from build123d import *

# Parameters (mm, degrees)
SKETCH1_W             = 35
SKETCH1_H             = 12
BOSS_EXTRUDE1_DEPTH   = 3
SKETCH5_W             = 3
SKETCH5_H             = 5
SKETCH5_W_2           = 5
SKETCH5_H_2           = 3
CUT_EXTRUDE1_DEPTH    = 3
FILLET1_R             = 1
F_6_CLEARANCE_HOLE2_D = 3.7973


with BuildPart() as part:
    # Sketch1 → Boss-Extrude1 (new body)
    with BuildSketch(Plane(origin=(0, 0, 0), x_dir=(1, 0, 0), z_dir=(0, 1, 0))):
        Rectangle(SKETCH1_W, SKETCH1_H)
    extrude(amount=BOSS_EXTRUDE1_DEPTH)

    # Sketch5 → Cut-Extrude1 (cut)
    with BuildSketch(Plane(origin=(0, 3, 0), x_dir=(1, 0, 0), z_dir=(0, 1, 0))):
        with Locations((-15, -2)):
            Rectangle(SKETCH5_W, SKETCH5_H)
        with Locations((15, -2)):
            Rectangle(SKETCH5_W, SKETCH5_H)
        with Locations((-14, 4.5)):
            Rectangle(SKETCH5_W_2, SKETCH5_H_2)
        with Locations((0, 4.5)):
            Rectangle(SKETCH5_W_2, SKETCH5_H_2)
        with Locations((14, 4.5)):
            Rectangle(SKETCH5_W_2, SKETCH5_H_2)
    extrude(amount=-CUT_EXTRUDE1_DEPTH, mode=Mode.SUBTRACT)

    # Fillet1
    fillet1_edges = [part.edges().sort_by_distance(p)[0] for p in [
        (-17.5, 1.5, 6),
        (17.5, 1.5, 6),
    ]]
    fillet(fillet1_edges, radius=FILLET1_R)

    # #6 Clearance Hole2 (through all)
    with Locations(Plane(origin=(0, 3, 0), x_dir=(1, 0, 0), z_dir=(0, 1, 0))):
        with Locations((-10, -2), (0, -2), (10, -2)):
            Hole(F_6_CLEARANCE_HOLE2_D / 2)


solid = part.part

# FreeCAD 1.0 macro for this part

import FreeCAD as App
import Part
import Sketcher

V = App.Vector
Q = App.Units.Quantity


def edges_at(feature, points):
    """Names of the edges that pass closest to the given points."""
    edges = feature.Shape.Edges
    near = lambda p: min(range(len(edges)), key=lambda i: edges[i].distToShape(Part.Vertex(*p))[0])
    return sorted({f"Edge{near(p) + 1}" for p in points})


def add_polygon(sketch, points):
    """Adds a closed chain of lines whose ends are joined by coincident constraints."""
    first, n = sketch.GeometryCount, len(points)
    for a, b in zip(points, points[1:] + points[:1]):
        sketch.addGeometry(Part.LineSegment(App.Vector(*a, 0), App.Vector(*b, 0)), False)
    for i in range(n):
        sketch.addConstraint(Sketcher.Constraint("Coincident", first + i, 2, first + (i + 1) % n, 1))

doc = App.newDocument("Part")
body = doc.addObject("PartDesign::Body", "Body")

# Sketch on XZ plane
sketch1 = body.newObject("Sketcher::SketchObject", "Sketch")
sketch1.AttachmentSupport = (doc.getObject("XZ_Plane"), [""])
sketch1.MapMode = "FlatFace"
add_polygon(sketch1, [(-18, -6), (-18, 6), (18, 6), (18, -6)])  # lines 0-3
sketch1.addConstraint([
    Sketcher.Constraint("Vertical", 0),
    Sketcher.Constraint("Horizontal", 1),
    Sketcher.Constraint("Vertical", 2),
    Sketcher.Constraint("Horizontal", 3),
    Sketcher.Constraint("Symmetric", 0, 2, 2, 2, -1, 1),
    Sketcher.Constraint("DistanceX", 1, 1, 1, 2, Q("35 mm")),
    Sketcher.Constraint("DistanceY", 0, 1, 0, 2, Q("12 mm")),
])
pad1 = body.newObject("PartDesign::Pad", "Pad")
pad1.Profile = sketch1
pad1.Length = 3
pad1.Reversed = True

# Sketch on XZ plane
sketch2 = body.newObject("Sketcher::SketchObject", "Sketch001")
sketch2.AttachmentSupport = (doc.getObject("XZ_Plane"), [""])
sketch2.MapMode = "FlatFace"
sketch2.AttachmentOffset = App.Placement(V(0, 0, -3), App.Rotation())
add_polygon(sketch2, [(-16.5, -0.5), (-16.5, 4.5), (-13.5, 4.5), (-13.5, -0.5)])  # lines 0-3
add_polygon(sketch2, [(13.5, -0.5), (13.5, 4.5), (16.5, 4.5), (16.5, -0.5)])  # lines 4-7
add_polygon(sketch2, [(-16.5, -6), (-16.5, -3), (-11.5, -3), (-11.5, -6)])  # lines 8-11
add_polygon(sketch2, [(-2.5, -6), (-2.5, -3), (2.5, -3), (2.5, -6)])  # lines 12-15
add_polygon(sketch2, [(11.5, -6), (11.5, -3), (16.5, -3), (16.5, -6)])  # lines 16-19
sketch2.addConstraint([
    Sketcher.Constraint("Vertical", 0),
    Sketcher.Constraint("Horizontal", 1),
    Sketcher.Constraint("Vertical", 2),
    Sketcher.Constraint("Horizontal", 3),
    Sketcher.Constraint("Vertical", 4),
    Sketcher.Constraint("Horizontal", 5),
    Sketcher.Constraint("Vertical", 6),
    Sketcher.Constraint("Horizontal", 7),
    Sketcher.Constraint("Vertical", 8),
    Sketcher.Constraint("Horizontal", 9),
    Sketcher.Constraint("Vertical", 10),
    Sketcher.Constraint("Horizontal", 11),
    Sketcher.Constraint("Vertical", 12),
    Sketcher.Constraint("Horizontal", 13),
    Sketcher.Constraint("Vertical", 14),
    Sketcher.Constraint("Horizontal", 15),
    Sketcher.Constraint("Vertical", 16),
    Sketcher.Constraint("Horizontal", 17),
    Sketcher.Constraint("Vertical", 18),
    Sketcher.Constraint("Horizontal", 19),
    Sketcher.Constraint("Symmetric", 1, 2, 4, 2, -2),
    Sketcher.Constraint("Symmetric", 3, 2, 6, 2, -2),
    Sketcher.Constraint("Symmetric", 9, 2, 16, 2, -2),
    Sketcher.Constraint("Symmetric", 11, 2, 18, 2, -2),
    Sketcher.Constraint("Horizontal", 9, 2, 12, 2),
    Sketcher.Constraint("Horizontal", 11, 2, 14, 2),
    Sketcher.Constraint("Vertical", 3, 2, 8, 2),
    Sketcher.Constraint("Equal", 11, 13),
    Sketcher.Constraint("Equal", 19, 0),
    Sketcher.Constraint("Equal", 7, 8),
    Sketcher.Constraint("DistanceX", 1, 1, 1, 2, Q("3 mm")),
    Sketcher.Constraint("DistanceX", 9, 1, 9, 2, Q("5 mm")),
    Sketcher.Constraint("DistanceY", 8, 2, -1, 1, Q("3 mm")),
    Sketcher.Constraint("DistanceX", 1, 2, 4, 2, Q("27 mm")),
    Sketcher.Constraint("DistanceX", 9, 2, 12, 2, Q("9 mm")),
    Sketcher.Constraint("DistanceY", -1, 1, 0, 2, Q("4.5 mm")),
])
pocket1 = body.newObject("PartDesign::Pocket", "Pocket")
pocket1.Profile = sketch2
pocket1.Length = 3
pocket1.Reversed = True
doc.recompute()

fillet = body.newObject("PartDesign::Fillet", "Fillet")
fillet.Base = (pocket1, edges_at(pocket1, [(-17.5, 1.5, 6), (17.5, 1.5, 6)]))
fillet.Radius = 1

# Sketch on XZ plane
sketch3 = body.newObject("Sketcher::SketchObject", "Sketch002")
sketch3.AttachmentSupport = (doc.getObject("XZ_Plane"), [""])
sketch3.MapMode = "FlatFace"
sketch3.AttachmentOffset = App.Placement(V(0, 0, -3), App.Rotation())
sketch3.addGeometry([
    Part.Circle(V(-10, 2, 0), V(0, 0, 1), 1.9),
    Part.Circle(V(0, 2, 0), V(0, 0, 1), 1.9),
    Part.Circle(V(10, 2, 0), V(0, 0, 1), 1.9),
], False)
sketch3.addConstraint([
    Sketcher.Constraint("Equal", 0, 1),
    Sketcher.Constraint("Equal", 1, 2),
    Sketcher.Constraint("Symmetric", 0, 3, 2, 3, -2),
    Sketcher.Constraint("PointOnObject", 1, 3, -2),
    Sketcher.Constraint("Horizontal", 0, 3, 1, 3),
    Sketcher.Constraint("DistanceX", 0, 3, -1, 1, Q("10 mm")),
    Sketcher.Constraint("DistanceY", -1, 1, 0, 3, Q("2 mm")),
    Sketcher.Constraint("Diameter", 0, Q("3.7973 mm")),
])
doc.recompute()
hole = body.newObject("PartDesign::Hole", "Hole")
hole.Profile = sketch3
hole.ThreadType = "None"
hole.Diameter = 3.7973
hole.DepthType = "ThroughAll"
hole.Reversed = True

doc.recompute()
